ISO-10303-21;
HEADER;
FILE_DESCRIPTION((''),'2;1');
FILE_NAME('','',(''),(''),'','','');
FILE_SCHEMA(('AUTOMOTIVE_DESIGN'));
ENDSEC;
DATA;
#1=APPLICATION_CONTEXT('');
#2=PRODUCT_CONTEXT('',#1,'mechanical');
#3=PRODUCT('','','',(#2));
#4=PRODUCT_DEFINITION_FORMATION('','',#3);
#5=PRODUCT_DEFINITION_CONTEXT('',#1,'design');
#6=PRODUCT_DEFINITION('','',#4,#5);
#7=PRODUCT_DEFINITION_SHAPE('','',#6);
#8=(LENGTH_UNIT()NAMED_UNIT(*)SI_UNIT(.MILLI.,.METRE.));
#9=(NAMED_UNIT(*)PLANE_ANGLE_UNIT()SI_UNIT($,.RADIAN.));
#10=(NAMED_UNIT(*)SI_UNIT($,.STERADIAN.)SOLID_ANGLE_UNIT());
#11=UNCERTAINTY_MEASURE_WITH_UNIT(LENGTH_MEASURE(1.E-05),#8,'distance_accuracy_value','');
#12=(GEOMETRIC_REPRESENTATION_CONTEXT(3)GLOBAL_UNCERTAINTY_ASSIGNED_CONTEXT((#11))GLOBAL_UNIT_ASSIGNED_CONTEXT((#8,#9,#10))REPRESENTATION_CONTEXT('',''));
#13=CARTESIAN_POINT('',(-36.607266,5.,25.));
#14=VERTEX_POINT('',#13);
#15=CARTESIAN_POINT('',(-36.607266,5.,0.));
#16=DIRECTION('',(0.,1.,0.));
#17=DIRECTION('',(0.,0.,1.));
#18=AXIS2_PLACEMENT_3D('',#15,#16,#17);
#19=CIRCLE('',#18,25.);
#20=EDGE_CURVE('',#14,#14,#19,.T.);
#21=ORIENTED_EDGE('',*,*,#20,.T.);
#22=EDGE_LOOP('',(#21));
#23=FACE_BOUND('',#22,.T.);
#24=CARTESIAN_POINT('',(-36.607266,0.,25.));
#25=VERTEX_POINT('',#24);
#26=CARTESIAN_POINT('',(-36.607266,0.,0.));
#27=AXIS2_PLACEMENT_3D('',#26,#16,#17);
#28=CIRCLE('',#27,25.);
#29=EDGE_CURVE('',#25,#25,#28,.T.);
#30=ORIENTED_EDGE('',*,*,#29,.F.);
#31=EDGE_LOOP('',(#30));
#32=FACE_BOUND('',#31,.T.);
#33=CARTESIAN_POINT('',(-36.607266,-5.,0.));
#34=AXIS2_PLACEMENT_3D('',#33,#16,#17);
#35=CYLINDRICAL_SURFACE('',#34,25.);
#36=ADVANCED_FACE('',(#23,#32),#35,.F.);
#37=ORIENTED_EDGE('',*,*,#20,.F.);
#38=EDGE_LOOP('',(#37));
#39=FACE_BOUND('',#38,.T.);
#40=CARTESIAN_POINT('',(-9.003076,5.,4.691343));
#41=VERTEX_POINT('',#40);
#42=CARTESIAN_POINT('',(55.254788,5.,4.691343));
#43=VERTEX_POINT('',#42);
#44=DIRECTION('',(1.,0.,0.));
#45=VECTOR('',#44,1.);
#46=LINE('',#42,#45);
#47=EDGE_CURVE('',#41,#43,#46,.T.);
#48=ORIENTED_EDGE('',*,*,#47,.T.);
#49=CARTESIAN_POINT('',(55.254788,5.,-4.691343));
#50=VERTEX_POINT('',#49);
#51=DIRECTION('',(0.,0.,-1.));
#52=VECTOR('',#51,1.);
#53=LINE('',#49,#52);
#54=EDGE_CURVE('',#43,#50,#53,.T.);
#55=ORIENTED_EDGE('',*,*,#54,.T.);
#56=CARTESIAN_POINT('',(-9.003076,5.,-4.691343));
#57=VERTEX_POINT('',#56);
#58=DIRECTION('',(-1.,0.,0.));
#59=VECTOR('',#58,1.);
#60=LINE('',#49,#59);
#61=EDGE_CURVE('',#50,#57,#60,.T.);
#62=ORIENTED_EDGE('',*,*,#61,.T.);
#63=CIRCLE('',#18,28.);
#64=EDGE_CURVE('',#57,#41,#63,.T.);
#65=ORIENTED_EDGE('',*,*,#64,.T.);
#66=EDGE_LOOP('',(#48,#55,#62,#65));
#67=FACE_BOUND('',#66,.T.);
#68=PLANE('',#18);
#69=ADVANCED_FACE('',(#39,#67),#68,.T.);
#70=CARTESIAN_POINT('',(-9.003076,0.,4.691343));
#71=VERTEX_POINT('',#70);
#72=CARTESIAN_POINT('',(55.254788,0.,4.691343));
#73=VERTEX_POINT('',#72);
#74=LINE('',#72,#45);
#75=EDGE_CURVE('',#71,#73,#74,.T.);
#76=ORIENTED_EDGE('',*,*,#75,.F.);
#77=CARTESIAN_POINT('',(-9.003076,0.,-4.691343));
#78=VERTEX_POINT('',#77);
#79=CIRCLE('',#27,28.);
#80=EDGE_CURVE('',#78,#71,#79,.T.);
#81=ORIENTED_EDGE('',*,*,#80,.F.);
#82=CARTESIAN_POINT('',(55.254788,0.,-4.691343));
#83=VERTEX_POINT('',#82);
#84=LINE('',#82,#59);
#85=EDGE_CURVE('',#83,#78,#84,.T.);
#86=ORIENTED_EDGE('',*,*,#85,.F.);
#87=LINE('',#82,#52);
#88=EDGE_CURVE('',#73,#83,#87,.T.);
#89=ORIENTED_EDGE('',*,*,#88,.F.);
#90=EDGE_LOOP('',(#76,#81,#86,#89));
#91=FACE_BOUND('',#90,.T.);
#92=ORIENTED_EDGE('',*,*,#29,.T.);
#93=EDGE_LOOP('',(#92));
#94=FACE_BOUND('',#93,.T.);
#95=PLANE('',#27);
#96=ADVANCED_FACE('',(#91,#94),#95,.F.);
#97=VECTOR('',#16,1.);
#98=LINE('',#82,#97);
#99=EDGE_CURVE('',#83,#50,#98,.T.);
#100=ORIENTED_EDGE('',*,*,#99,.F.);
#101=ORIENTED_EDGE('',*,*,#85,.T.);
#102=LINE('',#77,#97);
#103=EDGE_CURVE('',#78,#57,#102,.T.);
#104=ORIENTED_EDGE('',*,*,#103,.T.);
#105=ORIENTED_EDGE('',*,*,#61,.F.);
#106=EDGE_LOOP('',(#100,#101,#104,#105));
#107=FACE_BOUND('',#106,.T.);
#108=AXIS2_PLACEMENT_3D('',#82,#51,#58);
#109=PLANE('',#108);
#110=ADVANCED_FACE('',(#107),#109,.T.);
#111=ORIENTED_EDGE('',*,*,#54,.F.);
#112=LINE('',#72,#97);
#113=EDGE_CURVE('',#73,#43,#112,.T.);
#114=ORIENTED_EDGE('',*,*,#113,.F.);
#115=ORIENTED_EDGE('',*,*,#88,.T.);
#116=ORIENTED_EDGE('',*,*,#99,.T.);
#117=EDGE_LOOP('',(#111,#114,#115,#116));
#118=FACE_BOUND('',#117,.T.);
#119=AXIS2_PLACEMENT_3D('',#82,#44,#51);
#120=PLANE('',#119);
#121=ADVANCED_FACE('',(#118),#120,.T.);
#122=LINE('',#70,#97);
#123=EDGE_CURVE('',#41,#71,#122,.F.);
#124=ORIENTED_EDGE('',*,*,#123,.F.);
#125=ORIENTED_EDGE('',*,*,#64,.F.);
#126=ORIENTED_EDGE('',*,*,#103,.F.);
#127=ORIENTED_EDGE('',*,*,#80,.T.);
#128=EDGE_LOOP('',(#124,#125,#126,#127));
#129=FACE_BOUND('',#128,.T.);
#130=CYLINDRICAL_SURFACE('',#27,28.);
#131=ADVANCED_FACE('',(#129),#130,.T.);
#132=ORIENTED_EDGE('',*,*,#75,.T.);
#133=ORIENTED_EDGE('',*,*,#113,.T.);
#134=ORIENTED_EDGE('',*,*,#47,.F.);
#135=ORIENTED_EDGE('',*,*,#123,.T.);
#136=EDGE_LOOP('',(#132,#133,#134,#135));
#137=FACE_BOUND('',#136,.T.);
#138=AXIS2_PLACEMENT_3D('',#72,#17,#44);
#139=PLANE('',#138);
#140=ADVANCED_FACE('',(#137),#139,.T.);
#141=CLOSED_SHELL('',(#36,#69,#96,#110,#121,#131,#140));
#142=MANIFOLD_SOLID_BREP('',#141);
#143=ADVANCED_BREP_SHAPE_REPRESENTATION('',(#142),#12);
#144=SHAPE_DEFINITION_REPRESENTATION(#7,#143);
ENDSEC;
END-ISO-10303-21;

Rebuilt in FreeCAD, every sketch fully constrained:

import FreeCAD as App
import Part
import Sketcher

V = App.Vector
Q = App.Units.Quantity


def add_polygon(sketch, points):
    """Adds a closed chain of lines whose ends are joined by coincident constraints."""
    first, n = sketch.GeometryCount, len(points)
    for a, b in zip(points, points[1:] + points[:1]):
        sketch.addGeometry(Part.LineSegment(App.Vector(*a, 0), App.Vector(*b, 0)), False)
    for i in range(n):
        sketch.addConstraint(Sketcher.Constraint("Coincident", first + i, 2, first + (i + 1) % n, 1))

doc = App.newDocument("Part")
body = doc.addObject("PartDesign::Body", "Body")

sketch1 = body.newObject("Sketcher::SketchObject", "Sketch")
sketch1.AttachmentSupport = (doc.getObject("XZ_Plane"), [""])
sketch1.MapMode = "FlatFace"
sketch1.AttachmentOffset = App.Placement(V(0, 0, -5), App.Rotation())
sketch1.addGeometry(Part.Circle(V(-37, 0, 0), V(0, 0, 1), 28), False)
sketch1.addConstraint(Sketcher.Constraint("PointOnObject", 0, 3, -1))
sketch1.addConstraint(Sketcher.Constraint("Diameter", 0, Q("56 mm")))
sketch1.addConstraint(Sketcher.Constraint("DistanceX", 0, 3, -1, 1, Q("36.607266 mm")))
pad1 = body.newObject("PartDesign::Pad", "Pad")
pad1.Profile = sketch1
pad1.Length = 5

sketch2 = body.newObject("Sketcher::SketchObject", "Sketch001")
sketch2.AttachmentSupport = (doc.getObject("XZ_Plane"), [""])
sketch2.MapMode = "FlatFace"
sketch2.AttachmentOffset = App.Placement(V(0, 0, -5), App.Rotation())
sketch2.addGeometry(Part.Circle(V(-37, 0, 0), V(0, 0, 1), 25), False)
sketch2.addConstraint(Sketcher.Constraint("PointOnObject", 0, 3, -1))
sketch2.addConstraint(Sketcher.Constraint("Diameter", 0, Q("50 mm")))
sketch2.addConstraint(Sketcher.Constraint("DistanceX", 0, 3, -1, 1, Q("36.607266 mm")))
pocket1 = body.newObject("PartDesign::Pocket", "Pocket")
pocket1.Profile = sketch2
pocket1.Length = 10
pocket1.Reversed = True

sketch3 = body.newObject("Sketcher::SketchObject", "Sketch002")
sketch3.AttachmentSupport = (doc.getObject("XZ_Plane"), [""])
sketch3.MapMode = "FlatFace"
sketch3.AttachmentOffset = App.Placement(V(0, 0, -5), App.Rotation())
add_polygon(sketch3, [(-10, -5), (-10, 5), (55, 5), (55, -5)])
sketch3.addConstraint(Sketcher.Constraint("Vertical", 0))
sketch3.addConstraint(Sketcher.Constraint("Horizontal", 1))
sketch3.addConstraint(Sketcher.Constraint("Vertical", 2))
sketch3.addConstraint(Sketcher.Constraint("Horizontal", 3))
sketch3.addConstraint(Sketcher.Constraint("DistanceX", 1, 1, 1, 2, Q("65 mm")))
sketch3.addConstraint(Sketcher.Constraint("DistanceY", 0, 1, 0, 2, Q("9.382686 mm")))
sketch3.addConstraint(Sketcher.Constraint("DistanceX", 0, 2, -1, 1, Q("9.745212 mm")))
sketch3.addConstraint(Sketcher.Constraint("DistanceY", -1, 1, 0, 2, Q("4.691343 mm")))
pad2 = body.newObject("PartDesign::Pad", "Pad001")
pad2.Profile = sketch3
pad2.Length = 5

doc.recompute()
